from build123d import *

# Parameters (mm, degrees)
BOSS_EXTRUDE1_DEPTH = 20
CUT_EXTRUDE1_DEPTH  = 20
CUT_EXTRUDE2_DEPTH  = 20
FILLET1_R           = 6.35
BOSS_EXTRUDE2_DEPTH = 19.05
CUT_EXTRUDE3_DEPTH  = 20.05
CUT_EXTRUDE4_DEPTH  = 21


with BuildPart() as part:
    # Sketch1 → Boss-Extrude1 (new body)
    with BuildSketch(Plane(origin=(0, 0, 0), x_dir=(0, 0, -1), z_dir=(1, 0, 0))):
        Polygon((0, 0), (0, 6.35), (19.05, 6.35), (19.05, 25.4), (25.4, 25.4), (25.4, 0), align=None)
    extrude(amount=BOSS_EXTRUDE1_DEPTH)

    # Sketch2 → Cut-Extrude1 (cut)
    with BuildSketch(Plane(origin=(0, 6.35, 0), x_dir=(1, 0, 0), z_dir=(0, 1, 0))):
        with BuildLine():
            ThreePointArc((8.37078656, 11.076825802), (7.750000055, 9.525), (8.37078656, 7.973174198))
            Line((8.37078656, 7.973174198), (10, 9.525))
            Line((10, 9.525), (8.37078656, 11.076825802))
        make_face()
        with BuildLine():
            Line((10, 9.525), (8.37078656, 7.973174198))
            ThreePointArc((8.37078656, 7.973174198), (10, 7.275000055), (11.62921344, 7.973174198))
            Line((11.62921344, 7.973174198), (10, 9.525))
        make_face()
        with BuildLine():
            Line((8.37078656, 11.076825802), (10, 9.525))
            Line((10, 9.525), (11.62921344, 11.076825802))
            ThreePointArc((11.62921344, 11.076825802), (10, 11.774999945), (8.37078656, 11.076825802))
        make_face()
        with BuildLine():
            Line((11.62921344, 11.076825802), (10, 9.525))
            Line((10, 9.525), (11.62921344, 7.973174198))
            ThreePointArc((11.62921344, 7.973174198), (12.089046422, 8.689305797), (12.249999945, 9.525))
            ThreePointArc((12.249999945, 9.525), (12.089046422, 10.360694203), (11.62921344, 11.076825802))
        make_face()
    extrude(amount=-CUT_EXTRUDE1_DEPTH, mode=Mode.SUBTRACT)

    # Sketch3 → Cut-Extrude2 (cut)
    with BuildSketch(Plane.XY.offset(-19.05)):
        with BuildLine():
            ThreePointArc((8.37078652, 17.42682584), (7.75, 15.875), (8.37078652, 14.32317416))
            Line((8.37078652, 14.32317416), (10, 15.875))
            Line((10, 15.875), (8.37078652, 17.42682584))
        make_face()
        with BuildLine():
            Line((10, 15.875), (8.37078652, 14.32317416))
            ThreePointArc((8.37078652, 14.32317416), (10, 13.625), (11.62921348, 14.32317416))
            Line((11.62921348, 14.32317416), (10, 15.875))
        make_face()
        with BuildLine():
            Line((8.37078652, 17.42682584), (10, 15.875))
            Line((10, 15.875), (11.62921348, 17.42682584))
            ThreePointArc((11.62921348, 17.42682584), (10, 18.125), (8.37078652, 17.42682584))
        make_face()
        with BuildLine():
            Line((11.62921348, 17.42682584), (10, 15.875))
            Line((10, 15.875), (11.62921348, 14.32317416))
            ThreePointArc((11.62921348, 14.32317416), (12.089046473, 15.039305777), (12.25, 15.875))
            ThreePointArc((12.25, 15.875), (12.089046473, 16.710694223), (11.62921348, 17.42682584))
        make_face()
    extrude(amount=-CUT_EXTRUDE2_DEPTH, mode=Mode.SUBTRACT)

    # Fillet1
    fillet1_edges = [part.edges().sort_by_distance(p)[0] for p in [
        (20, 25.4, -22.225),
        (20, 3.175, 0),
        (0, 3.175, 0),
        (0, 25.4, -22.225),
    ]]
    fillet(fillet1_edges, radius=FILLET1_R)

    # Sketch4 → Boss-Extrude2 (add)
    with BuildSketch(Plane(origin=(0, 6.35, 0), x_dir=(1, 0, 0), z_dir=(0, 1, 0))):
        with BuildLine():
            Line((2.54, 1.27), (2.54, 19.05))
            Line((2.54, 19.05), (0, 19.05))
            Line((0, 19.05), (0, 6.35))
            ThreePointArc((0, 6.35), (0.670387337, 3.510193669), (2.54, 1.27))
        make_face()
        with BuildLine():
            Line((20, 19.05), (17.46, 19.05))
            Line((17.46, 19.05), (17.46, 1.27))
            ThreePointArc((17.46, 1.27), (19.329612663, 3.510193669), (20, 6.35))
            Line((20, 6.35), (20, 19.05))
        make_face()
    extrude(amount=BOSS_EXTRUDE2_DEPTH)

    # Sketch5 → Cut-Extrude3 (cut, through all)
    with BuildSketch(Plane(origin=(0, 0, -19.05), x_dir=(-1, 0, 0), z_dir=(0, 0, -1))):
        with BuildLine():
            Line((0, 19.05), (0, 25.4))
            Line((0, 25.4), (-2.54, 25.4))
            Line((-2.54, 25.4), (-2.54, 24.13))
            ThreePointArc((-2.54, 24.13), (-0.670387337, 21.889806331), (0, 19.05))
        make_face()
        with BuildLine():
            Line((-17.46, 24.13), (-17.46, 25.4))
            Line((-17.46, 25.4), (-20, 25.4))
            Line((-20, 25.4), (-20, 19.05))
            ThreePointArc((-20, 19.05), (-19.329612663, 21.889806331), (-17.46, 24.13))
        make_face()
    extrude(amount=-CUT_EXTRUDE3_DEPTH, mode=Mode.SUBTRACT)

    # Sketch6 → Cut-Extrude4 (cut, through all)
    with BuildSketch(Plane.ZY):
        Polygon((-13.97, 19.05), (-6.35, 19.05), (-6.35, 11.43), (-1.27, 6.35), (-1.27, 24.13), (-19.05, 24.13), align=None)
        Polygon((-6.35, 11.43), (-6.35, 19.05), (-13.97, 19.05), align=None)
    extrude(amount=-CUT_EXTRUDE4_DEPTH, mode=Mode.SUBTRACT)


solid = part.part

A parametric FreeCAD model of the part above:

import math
import FreeCAD as App
import Part
import Sketcher

V = App.Vector
Q = App.Units.Quantity


def edges_at(feature, points):
    """Names of the edges that pass closest to the given points."""
    edges = feature.Shape.Edges
    near = lambda p: min(range(len(edges)), key=lambda i: edges[i].distToShape(Part.Vertex(*p))[0])
    return sorted({f"Edge{near(p) + 1}" for p in points})


def add_polygon(sketch, points):
    """Adds a closed chain of lines whose ends are joined by coincident constraints."""
    first, n = sketch.GeometryCount, len(points)
    for a, b in zip(points, points[1:] + points[:1]):
        sketch.addGeometry(Part.LineSegment(App.Vector(*a, 0), App.Vector(*b, 0)), False)
    for i in range(n):
        sketch.addConstraint(Sketcher.Constraint("Coincident", first + i, 2, first + (i + 1) % n, 1))

doc = App.newDocument("Part")
body = doc.addObject("PartDesign::Body", "Body")

# Sketch on YZ plane
sketch1 = doc.addObject("Sketcher::SketchObject", "Sketch")
body.addObject(sketch1)
sketch1.AttachmentSupport = (doc.YZ_Plane, [""])
sketch1.MapMode = "FlatFace"
add_polygon(sketch1, [(6.35, 0), (0, 0), (0, -25.4), (25.4, -25.4), (25.4, -19.05), (6.35, -19.05)])  # lines 0-5
sketch1.addConstraint([
    Sketcher.Constraint("Horizontal", 0),
    Sketcher.Constraint("Vertical", 1),
    Sketcher.Constraint("Horizontal", 2),
    Sketcher.Constraint("Vertical", 3),
    Sketcher.Constraint("Horizontal", 4),
    Sketcher.Constraint("Vertical", 5),
    Sketcher.Constraint("Coincident", 0, 2, -1, 1),
    Sketcher.Constraint("Equal", 2, 1),
    Sketcher.Constraint("Equal", 0, 3),
    Sketcher.Constraint("DistanceX", 2, 1, 2, 2, Q("1 in")),
    Sketcher.Constraint("DistanceX", 0, 2, 0, 1, Q("0.25 in")),
])
pad1 = doc.addObject("PartDesign::Pad", "Pad")
body.addObject(pad1)
pad1.Profile = sketch1
pad1.Length = 20

# Sketch on XZ plane
sketch2 = doc.addObject("Sketcher::SketchObject", "Sketch001")
body.addObject(sketch2)
sketch2.AttachmentSupport = (doc.XZ_Plane, [""])
sketch2.MapMode = "FlatFace"
sketch2.AttachmentOffset = App.Placement(V(0, 0, -0.25 * 25.4), App.Rotation())
sketch2.addGeometry([
    Part.ArcOfCircle(Part.Circle(V(10, -9.525, 0), V(0, 0, 1), 2.25), math.radians(0), math.radians(43.606396)),  # 0
    Part.ArcOfCircle(Part.Circle(V(10, -9.525, 0), V(0, 0, 1), 2.25), math.radians(-43.606396), math.radians(0)),  # 1
    Part.ArcOfCircle(Part.Circle(V(10, -9.525, 0), V(0, 0, 1), 2.25), math.radians(-136.393605), math.radians(-43.606395)),  # 2
    Part.ArcOfCircle(Part.Circle(V(10, -9.525, 0), V(0, 0, 1), 2.25), math.radians(136.393605), math.radians(223.606395)),  # 3
    Part.ArcOfCircle(Part.Circle(V(10, -9.525, 0), V(0, 0, 1), 2.25), math.radians(43.606395), math.radians(136.393605)),  # 4
], False)
sketch2.addConstraint([
    Sketcher.Constraint("Tangent", 0, 1, 1, 2),
    Sketcher.Constraint("Tangent", 1, 1, 2, 2),
    Sketcher.Constraint("Tangent", 2, 1, 3, 2),
    Sketcher.Constraint("Tangent", 3, 1, 4, 2),
    Sketcher.Constraint("Tangent", 4, 1, 0, 2),
    Sketcher.Constraint("Coincident", 2, 3, 0, 3),
    Sketcher.Constraint("Horizontal", 4, 3, 0, 1),
    Sketcher.Constraint("Horizontal", 1, 1, 2, 1),
    Sketcher.Constraint("Horizontal", 3, 1, 4, 1),
    Sketcher.Constraint("Vertical", 2, 1, 3, 1),
    Sketcher.Constraint("Radius", 0, 2.25),
    Sketcher.Constraint("DistanceY", 0, 3, -1, 1, Q("0.375 in")),
    Sketcher.Constraint("DistanceX", -1, 1, 0, 3, 10.0),
    Sketcher.Constraint("DistanceX", -1, 1, 1, 1, 11.629213),
])
pocket1 = doc.addObject("PartDesign::Pocket", "Pocket")
body.addObject(pocket1)
pocket1.Profile = sketch2
pocket1.Length = 20
pocket1.Reversed = True

# Sketch on XY plane
sketch3 = doc.addObject("Sketcher::SketchObject", "Sketch002")
body.addObject(sketch3)
sketch3.AttachmentSupport = (doc.XY_Plane, [""])
sketch3.MapMode = "FlatFace"
sketch3.AttachmentOffset = App.Placement(V(0, 0, -0.75 * 25.4), App.Rotation())
sketch3.addGeometry([
    Part.ArcOfCircle(Part.Circle(V(10, 15.875, 0), V(0, 0, 1), 2.25), math.radians(-43.606395), math.radians(0)),  # 0
    Part.ArcOfCircle(Part.Circle(V(10, 15.875, 0), V(0, 0, 1), 2.25), math.radians(0), math.radians(43.606395)),  # 1
    Part.ArcOfCircle(Part.Circle(V(10, 15.875, 0), V(0, 0, 1), 2.25), math.radians(43.606396), math.radians(136.393604)),  # 2
    Part.ArcOfCircle(Part.Circle(V(10, 15.875, 0), V(0, 0, 1), 2.25), math.radians(136.393605), math.radians(223.606395)),  # 3
    Part.ArcOfCircle(Part.Circle(V(10, 15.875, 0), V(0, 0, 1), 2.25), math.radians(-136.393604), math.radians(-43.606396)),  # 4
], False)
sketch3.addConstraint([
    Sketcher.Constraint("Tangent", 0, 2, 1, 1),
    Sketcher.Constraint("Tangent", 1, 2, 2, 1),
    Sketcher.Constraint("Tangent", 2, 2, 3, 1),
    Sketcher.Constraint("Tangent", 3, 2, 4, 1),
    Sketcher.Constraint("Tangent", 4, 2, 0, 1),
    Sketcher.Constraint("Coincident", 2, 3, 0, 3),
    Sketcher.Constraint("Horizontal", 4, 3, 0, 2),
    Sketcher.Constraint("Horizontal", 1, 2, 2, 2),
    Sketcher.Constraint("Horizontal", 3, 2, 4, 2),
    Sketcher.Constraint("Vertical", 2, 2, 3, 2),
    Sketcher.Constraint("Radius", 0, 2.25),
    Sketcher.Constraint("DistanceY", -1, 1, 0, 3, Q("0.625 in")),
    Sketcher.Constraint("DistanceX", -1, 1, 0, 3, 10.0),
    Sketcher.Constraint("DistanceX", -1, 1, 1, 2, 11.629213),
])
pocket2 = doc.addObject("PartDesign::Pocket", "Pocket001")
body.addObject(pocket2)
pocket2.Profile = sketch3
pocket2.Length = 20
doc.recompute()

fillet = doc.addObject("PartDesign::Fillet", "Fillet")
body.addObject(fillet)
fillet.Base = (pocket2, edges_at(pocket2, [
    (20, 25.4, -22.225),
    (20, 3.175, 0),
    (0, 3.175, 0),
    (0, 25.4, -22.225),
]))
fillet.Radius = Q("0.25 in")

# Sketch on XZ plane
sketch4 = doc.addObject("Sketcher::SketchObject", "Sketch003")
body.addObject(sketch4)
sketch4.AttachmentSupport = (doc.XZ_Plane, [""])
sketch4.MapMode = "FlatFace"
sketch4.AttachmentOffset = App.Placement(V(0, 0, -0.25 * 25.4), App.Rotation())
sketch4.addGeometry([
    Part.LineSegment(V(2.54, -1.27, 0), V(2.54, -19.05, 0)),  # 0
    Part.LineSegment(V(2.54, -19.05, 0), V(0, -19.05, 0)),  # 1
    Part.LineSegment(V(0, -19.05, 0), V(0, -6.35, 0)),  # 2
    Part.ArcOfCircle(Part.Circle(V(6.35, -6.35, 0), V(0, 0, 1), 6.35), math.radians(126.869898), math.radians(180)),  # 3
    Part.LineSegment(V(20, -19.05, 0), V(17.46, -19.05, 0)),  # 4
    Part.LineSegment(V(17.46, -19.05, 0), V(17.46, -1.27, 0)),  # 5
    Part.ArcOfCircle(Part.Circle(V(13.65, -6.35, 0), V(0, 0, 1), 6.35), math.radians(0), math.radians(53.130102)),  # 6
    Part.LineSegment(V(20, -6.35, 0), V(20, -19.05, 0)),  # 7
], False)
sketch4.addConstraint([
    Sketcher.Constraint("Coincident", 0, 2, 1, 1),
    Sketcher.Constraint("Coincident", 1, 2, 2, 1),
    Sketcher.Constraint("Tangent", 2, 2, 3, 2),
    Sketcher.Constraint("Coincident", 3, 1, 0, 1),
    Sketcher.Constraint("Coincident", 4, 2, 5, 1),
    Sketcher.Constraint("Coincident", 5, 2, 6, 2),
    Sketcher.Constraint("Tangent", 6, 1, 7, 1),
    Sketcher.Constraint("Coincident", 7, 2, 4, 1),
    Sketcher.Constraint("Vertical", 0),
    Sketcher.Constraint("Horizontal", 1),
    Sketcher.Constraint("Vertical", 2),
    Sketcher.Constraint("Horizontal", 4),
    Sketcher.Constraint("Vertical", 5),
    Sketcher.Constraint("Vertical", 7),
    Sketcher.Constraint("Equal", 3, 6),
    Sketcher.Constraint("PointOnObject", 1, 2, -2),
    Sketcher.Constraint("Horizontal", 3, 3, 6, 3),
    Sketcher.Constraint("Horizontal", 1, 2, 4, 2),
    Sketcher.Constraint("Horizontal", 3, 1, 5, 2),
    Sketcher.Constraint("Radius", 3, Q("0.25 in")),
    Sketcher.Constraint("DistanceX", 1, 2, 1, 1, Q("0.1 in")),
    Sketcher.Constraint("DistanceY", 0, 2, 0, 1, Q("0.7 in")),
    Sketcher.Constraint("DistanceY", 3, 3, -1, 1, Q("0.25 in")),
    Sketcher.Constraint("DistanceX", -1, 1, 6, 3, 13.65),
])
pad2 = doc.addObject("PartDesign::Pad", "Pad001")
body.addObject(pad2)
pad2.Profile = sketch4
pad2.Length = Q("0.75 in")
pad2.Reversed = True

# Sketch on XY plane
sketch5 = doc.addObject("Sketcher::SketchObject", "Sketch004")
body.addObject(sketch5)
sketch5.AttachmentSupport = (doc.XY_Plane, [""])
sketch5.MapMode = "FlatFace"
sketch5.AttachmentOffset = App.Placement(V(0, 0, -0.75 * 25.4), App.Rotation())
sketch5.addGeometry([
    Part.LineSegment(V(0, 19.05, 0), V(0, 25.4, 0)),  # 0
    Part.LineSegment(V(0, 25.4, 0), V(2.54, 25.4, 0)),  # 1
    Part.LineSegment(V(2.54, 25.4, 0), V(2.54, 24.13, 0)),  # 2
    Part.ArcOfCircle(Part.Circle(V(6.35, 19.05, 0), V(0, 0, 1), 6.35), math.radians(126.869898), math.radians(180)),  # 3
    Part.LineSegment(V(17.46, 24.13, 0), V(17.46, 25.4, 0)),  # 4
    Part.LineSegment(V(17.46, 25.4, 0), V(20, 25.4, 0)),  # 5
    Part.LineSegment(V(20, 25.4, 0), V(20, 19.05, 0)),  # 6
    Part.ArcOfCircle(Part.Circle(V(13.65, 19.05, 0), V(0, 0, 1), 6.35), math.radians(0), math.radians(53.130102)),  # 7
], False)
sketch5.addConstraint([
    Sketcher.Constraint("Coincident", 0, 2, 1, 1),
    Sketcher.Constraint("Coincident", 1, 2, 2, 1),
    Sketcher.Constraint("Coincident", 2, 2, 3, 1),
    Sketcher.Constraint("Tangent", 3, 2, 0, 1),
    Sketcher.Constraint("Coincident", 4, 2, 5, 1),
    Sketcher.Constraint("Coincident", 5, 2, 6, 1),
    Sketcher.Constraint("Tangent", 6, 2, 7, 1),
    Sketcher.Constraint("Coincident", 7, 2, 4, 1),
    Sketcher.Constraint("Vertical", 0),
    Sketcher.Constraint("Horizontal", 1),
    Sketcher.Constraint("Vertical", 2),
    Sketcher.Constraint("Vertical", 4),
    Sketcher.Constraint("Horizontal", 5),
    Sketcher.Constraint("Vertical", 6),
    Sketcher.Constraint("Equal", 3, 7),
    Sketcher.Constraint("PointOnObject", 0, 2, -2),
    Sketcher.Constraint("Horizontal", 3, 3, 7, 3),
    Sketcher.Constraint("Horizontal", 1, 2, 4, 2),
    Sketcher.Constraint("Horizontal", 2, 2, 7, 2),
    Sketcher.Constraint("Radius", 3, Q("0.25 in")),
    Sketcher.Constraint("DistanceX", 1, 1, 1, 2, Q("0.1 in")),
    Sketcher.Constraint("DistanceY", -1, 1, 0, 2, Q("1 in")),
    Sketcher.Constraint("DistanceY", 0, 1, 0, 2, Q("0.25 in")),
    Sketcher.Constraint("DistanceX", -1, 1, 7, 3, 13.65),
])
pocket3 = doc.addObject("PartDesign::Pocket", "Pocket002")
body.addObject(pocket3)
pocket3.Profile = sketch5
pocket3.Type = "ThroughAll"
pocket3.Reversed = True

# Sketch on YZ plane
sketch6 = doc.addObject("Sketcher::SketchObject", "Sketch005")
body.addObject(sketch6)
sketch6.AttachmentSupport = (doc.YZ_Plane, [""])
sketch6.MapMode = "FlatFace"
add_polygon(sketch6, [(6.35, -1.27), (24.13, -1.27), (24.13, -19.05)])  # lines 0-2
sketch6.addConstraint([
    Sketcher.Constraint("Horizontal", 0),
    Sketcher.Constraint("Vertical", 1),
    Sketcher.Constraint("Equal", 0, 1),
    Sketcher.Constraint("DistanceX", 0, 1, 0, 2, Q("0.7 in")),
    Sketcher.Constraint("DistanceX", -1, 1, 0, 2, Q("0.95 in")),
    Sketcher.Constraint("DistanceY", 0, 2, -1, 1, Q("0.05 in")),
])
pocket4 = doc.addObject("PartDesign::Pocket", "Pocket003")
body.addObject(pocket4)
pocket4.Profile = sketch6
pocket4.Type = "ThroughAll"
pocket4.Reversed = True

doc.recompute()
